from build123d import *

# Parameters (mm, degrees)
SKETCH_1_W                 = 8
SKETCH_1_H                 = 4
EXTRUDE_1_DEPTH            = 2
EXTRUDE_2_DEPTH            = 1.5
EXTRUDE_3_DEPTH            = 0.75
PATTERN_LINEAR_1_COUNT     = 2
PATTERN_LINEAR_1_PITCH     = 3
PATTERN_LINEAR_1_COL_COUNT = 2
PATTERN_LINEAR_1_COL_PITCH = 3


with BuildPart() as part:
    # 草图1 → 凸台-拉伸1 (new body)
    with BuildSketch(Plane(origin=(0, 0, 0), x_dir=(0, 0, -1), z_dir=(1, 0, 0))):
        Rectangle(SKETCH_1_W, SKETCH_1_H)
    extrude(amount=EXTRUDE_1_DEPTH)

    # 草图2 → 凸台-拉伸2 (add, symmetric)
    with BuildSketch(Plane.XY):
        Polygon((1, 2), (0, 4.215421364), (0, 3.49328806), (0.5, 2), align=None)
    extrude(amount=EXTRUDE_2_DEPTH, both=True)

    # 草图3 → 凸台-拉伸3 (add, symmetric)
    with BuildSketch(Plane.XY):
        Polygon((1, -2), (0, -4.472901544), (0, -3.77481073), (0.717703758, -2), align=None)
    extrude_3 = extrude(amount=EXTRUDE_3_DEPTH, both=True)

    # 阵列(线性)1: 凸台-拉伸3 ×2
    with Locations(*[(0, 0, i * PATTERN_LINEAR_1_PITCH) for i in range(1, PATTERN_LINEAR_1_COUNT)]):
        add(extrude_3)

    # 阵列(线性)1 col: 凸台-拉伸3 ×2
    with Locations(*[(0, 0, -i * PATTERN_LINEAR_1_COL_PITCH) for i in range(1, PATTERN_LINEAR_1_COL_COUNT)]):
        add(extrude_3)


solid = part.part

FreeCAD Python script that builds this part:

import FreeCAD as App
import Part
import Sketcher
from FreeCAD import Vector

doc = App.newDocument("Part")
params = doc.addObject("Spreadsheet::Sheet", "Params")
for row, (alias, value) in enumerate([
    ("sketch1_width", "4 mm"),
    ("sketch1_height", "8 mm"),
    ("pad1_length", "2 mm"),
    ("sketch2_width", "0.5 mm"),
    ("pad2_length", "3 mm"),
    ("pad3_length", "1.5 mm"),
    ("linearpattern_pitch", "3 mm"),
    ("linearpattern2_pitch", "3 mm"),
], start=1):
    params.set(f"A{row}", alias)
    params.set(f"B{row}", "=" + value)
    params.setAlias(f"B{row}", alias)

body = doc.addObject("PartDesign::Body", "Body")

# Sketch on YZ plane
sketch1 = doc.addObject("Sketcher::SketchObject", "Sketch")
body.addObject(sketch1)
sketch1.AttachmentSupport = (doc.YZ_Plane, [""])
sketch1.MapMode = "FlatFace"
sketch1.addGeometry(Part.LineSegment(Vector(2, 4, 0), Vector(-2, 4, 0)), False)
sketch1.addGeometry(Part.LineSegment(Vector(-2, 4, 0), Vector(-2, -4, 0)), False)
sketch1.addGeometry(Part.LineSegment(Vector(-2, -4, 0), Vector(2, -4, 0)), False)
sketch1.addGeometry(Part.LineSegment(Vector(2, -4, 0), Vector(2, 4, 0)), False)
sketch1.addConstraint(Sketcher.Constraint("Coincident", 0, 2, 1, 1))
sketch1.addConstraint(Sketcher.Constraint("Coincident", 1, 2, 2, 1))
sketch1.addConstraint(Sketcher.Constraint("Coincident", 2, 2, 3, 1))
sketch1.addConstraint(Sketcher.Constraint("Coincident", 3, 2, 0, 1))
sketch1.addConstraint(Sketcher.Constraint("Horizontal", 0))
sketch1.addConstraint(Sketcher.Constraint("Vertical", 1))
sketch1.addConstraint(Sketcher.Constraint("Horizontal", 2))
sketch1.addConstraint(Sketcher.Constraint("Vertical", 3))
sketch1.addConstraint(Sketcher.Constraint("Symmetric", 0, 2, 2, 2, -1, 1))
sketch1.addConstraint(Sketcher.Constraint("DistanceX", 0, 2, 0, 1, 4.0))
sketch1.addConstraint(Sketcher.Constraint("DistanceY", 1, 2, 1, 1, 8.0))
sketch1.setExpression("Constraints[9]", "Params.sketch1_width")
sketch1.setExpression("Constraints[10]", "Params.sketch1_height")
pad1 = doc.addObject("PartDesign::Pad", "Pad")
body.addObject(pad1)
pad1.Profile = sketch1
pad1.setExpression("Length", "Params.pad1_length")

# Sketch on XY plane
sketch2 = doc.addObject("Sketcher::SketchObject", "Sketch001")
body.addObject(sketch2)
sketch2.AttachmentSupport = (doc.XY_Plane, [""])
sketch2.MapMode = "FlatFace"
sketch2.addGeometry(Part.LineSegment(Vector(1, 2, 0), Vector(0, 4.2, 0)), False)
sketch2.addGeometry(Part.LineSegment(Vector(0, 4.2, 0), Vector(0, 3.5, 0)), False)
sketch2.addGeometry(Part.LineSegment(Vector(0, 3.5, 0), Vector(0.5, 2, 0)), False)
sketch2.addGeometry(Part.LineSegment(Vector(0.5, 2, 0), Vector(1, 2, 0)), False)
sketch2.addConstraint(Sketcher.Constraint("Coincident", 0, 2, 1, 1))
sketch2.addConstraint(Sketcher.Constraint("Coincident", 1, 2, 2, 1))
sketch2.addConstraint(Sketcher.Constraint("Coincident", 2, 2, 3, 1))
sketch2.addConstraint(Sketcher.Constraint("Coincident", 3, 2, 0, 1))
sketch2.addConstraint(Sketcher.Constraint("Vertical", 1))
sketch2.addConstraint(Sketcher.Constraint("Horizontal", 3))
sketch2.addConstraint(Sketcher.Constraint("PointOnObject", 0, 2, -2))
sketch2.addConstraint(Sketcher.Constraint("DistanceX", 3, 1, 3, 2, 0.5))
sketch2.addConstraint(Sketcher.Constraint("DistanceY", -1, 1, 2, 2, 2.0))
sketch2.addConstraint(Sketcher.Constraint("DistanceX", -1, 1, 3, 2, 1.0))
sketch2.addConstraint(Sketcher.Constraint("DistanceY", 1, 2, 1, 1, 0.722133))
sketch2.addConstraint(Sketcher.Constraint("DistanceY", -1, 1, 0, 2, 4.215421))
sketch2.setExpression("Constraints[7]", "Params.sketch2_width")
pad2 = doc.addObject("PartDesign::Pad", "Pad001")
body.addObject(pad2)
pad2.Profile = sketch2
pad2.setExpression("Length", "Params.pad2_length")
pad2.Midplane = True

# Sketch on XY plane
sketch3 = doc.addObject("Sketcher::SketchObject", "Sketch002")
body.addObject(sketch3)
sketch3.AttachmentSupport = (doc.XY_Plane, [""])
sketch3.MapMode = "FlatFace"
sketch3.addGeometry(Part.LineSegment(Vector(0, -4.47, 0), Vector(1, -2, 0)), False)
sketch3.addGeometry(Part.LineSegment(Vector(1, -2, 0), Vector(0.72, -2, 0)), False)
sketch3.addGeometry(Part.LineSegment(Vector(0.72, -2, 0), Vector(0, -3.77, 0)), False)
sketch3.addGeometry(Part.LineSegment(Vector(0, -3.77, 0), Vector(0, -4.47, 0)), False)
sketch3.addConstraint(Sketcher.Constraint("Coincident", 0, 2, 1, 1))
sketch3.addConstraint(Sketcher.Constraint("Coincident", 1, 2, 2, 1))
sketch3.addConstraint(Sketcher.Constraint("Coincident", 2, 2, 3, 1))
sketch3.addConstraint(Sketcher.Constraint("Coincident", 3, 2, 0, 1))
sketch3.addConstraint(Sketcher.Constraint("Horizontal", 1))
sketch3.addConstraint(Sketcher.Constraint("Vertical", 3))
sketch3.addConstraint(Sketcher.Constraint("PointOnObject", 2, 2, -2))
sketch3.addConstraint(Sketcher.Constraint("Parallel", 0, 2))
sketch3.addConstraint(Sketcher.Constraint("DistanceX", -1, 1, 0, 2, 1.0))
sketch3.addConstraint(Sketcher.Constraint("DistanceY", 0, 2, -1, 1, 2.0))
sketch3.addConstraint(Sketcher.Constraint("DistanceY", 3, 2, 3, 1, 0.698091))
sketch3.addConstraint(Sketcher.Constraint("DistanceY", 3, 2, -1, 1, 4.472902))
pad3 = doc.addObject("PartDesign::Pad", "Pad002")
body.addObject(pad3)
pad3.Profile = sketch3
pad3.setExpression("Length", "Params.pad3_length")
pad3.Midplane = True
doc.recompute()

linearpattern = doc.addObject("PartDesign::LinearPattern", "LinearPattern")
body.addObject(linearpattern)
linearpattern.Originals = [pad3]
linearpattern.Direction = (doc.Z_Axis, [""])
linearpattern.Mode = "offset"
linearpattern.setExpression("Offset", "Params.linearpattern_pitch")
linearpattern.Occurrences = 2
body.Tip = linearpattern
doc.recompute()

linearpattern2 = doc.addObject("PartDesign::LinearPattern", "LinearPattern001")
body.addObject(linearpattern2)
linearpattern2.Originals = [pad3]
linearpattern2.Direction = (doc.Z_Axis, [""])
linearpattern2.Mode = "offset"
linearpattern2.setExpression("Offset", "Params.linearpattern2_pitch")
linearpattern2.Occurrences = 2
linearpattern2.Reversed = True
body.Tip = linearpattern2

doc.recompute()
